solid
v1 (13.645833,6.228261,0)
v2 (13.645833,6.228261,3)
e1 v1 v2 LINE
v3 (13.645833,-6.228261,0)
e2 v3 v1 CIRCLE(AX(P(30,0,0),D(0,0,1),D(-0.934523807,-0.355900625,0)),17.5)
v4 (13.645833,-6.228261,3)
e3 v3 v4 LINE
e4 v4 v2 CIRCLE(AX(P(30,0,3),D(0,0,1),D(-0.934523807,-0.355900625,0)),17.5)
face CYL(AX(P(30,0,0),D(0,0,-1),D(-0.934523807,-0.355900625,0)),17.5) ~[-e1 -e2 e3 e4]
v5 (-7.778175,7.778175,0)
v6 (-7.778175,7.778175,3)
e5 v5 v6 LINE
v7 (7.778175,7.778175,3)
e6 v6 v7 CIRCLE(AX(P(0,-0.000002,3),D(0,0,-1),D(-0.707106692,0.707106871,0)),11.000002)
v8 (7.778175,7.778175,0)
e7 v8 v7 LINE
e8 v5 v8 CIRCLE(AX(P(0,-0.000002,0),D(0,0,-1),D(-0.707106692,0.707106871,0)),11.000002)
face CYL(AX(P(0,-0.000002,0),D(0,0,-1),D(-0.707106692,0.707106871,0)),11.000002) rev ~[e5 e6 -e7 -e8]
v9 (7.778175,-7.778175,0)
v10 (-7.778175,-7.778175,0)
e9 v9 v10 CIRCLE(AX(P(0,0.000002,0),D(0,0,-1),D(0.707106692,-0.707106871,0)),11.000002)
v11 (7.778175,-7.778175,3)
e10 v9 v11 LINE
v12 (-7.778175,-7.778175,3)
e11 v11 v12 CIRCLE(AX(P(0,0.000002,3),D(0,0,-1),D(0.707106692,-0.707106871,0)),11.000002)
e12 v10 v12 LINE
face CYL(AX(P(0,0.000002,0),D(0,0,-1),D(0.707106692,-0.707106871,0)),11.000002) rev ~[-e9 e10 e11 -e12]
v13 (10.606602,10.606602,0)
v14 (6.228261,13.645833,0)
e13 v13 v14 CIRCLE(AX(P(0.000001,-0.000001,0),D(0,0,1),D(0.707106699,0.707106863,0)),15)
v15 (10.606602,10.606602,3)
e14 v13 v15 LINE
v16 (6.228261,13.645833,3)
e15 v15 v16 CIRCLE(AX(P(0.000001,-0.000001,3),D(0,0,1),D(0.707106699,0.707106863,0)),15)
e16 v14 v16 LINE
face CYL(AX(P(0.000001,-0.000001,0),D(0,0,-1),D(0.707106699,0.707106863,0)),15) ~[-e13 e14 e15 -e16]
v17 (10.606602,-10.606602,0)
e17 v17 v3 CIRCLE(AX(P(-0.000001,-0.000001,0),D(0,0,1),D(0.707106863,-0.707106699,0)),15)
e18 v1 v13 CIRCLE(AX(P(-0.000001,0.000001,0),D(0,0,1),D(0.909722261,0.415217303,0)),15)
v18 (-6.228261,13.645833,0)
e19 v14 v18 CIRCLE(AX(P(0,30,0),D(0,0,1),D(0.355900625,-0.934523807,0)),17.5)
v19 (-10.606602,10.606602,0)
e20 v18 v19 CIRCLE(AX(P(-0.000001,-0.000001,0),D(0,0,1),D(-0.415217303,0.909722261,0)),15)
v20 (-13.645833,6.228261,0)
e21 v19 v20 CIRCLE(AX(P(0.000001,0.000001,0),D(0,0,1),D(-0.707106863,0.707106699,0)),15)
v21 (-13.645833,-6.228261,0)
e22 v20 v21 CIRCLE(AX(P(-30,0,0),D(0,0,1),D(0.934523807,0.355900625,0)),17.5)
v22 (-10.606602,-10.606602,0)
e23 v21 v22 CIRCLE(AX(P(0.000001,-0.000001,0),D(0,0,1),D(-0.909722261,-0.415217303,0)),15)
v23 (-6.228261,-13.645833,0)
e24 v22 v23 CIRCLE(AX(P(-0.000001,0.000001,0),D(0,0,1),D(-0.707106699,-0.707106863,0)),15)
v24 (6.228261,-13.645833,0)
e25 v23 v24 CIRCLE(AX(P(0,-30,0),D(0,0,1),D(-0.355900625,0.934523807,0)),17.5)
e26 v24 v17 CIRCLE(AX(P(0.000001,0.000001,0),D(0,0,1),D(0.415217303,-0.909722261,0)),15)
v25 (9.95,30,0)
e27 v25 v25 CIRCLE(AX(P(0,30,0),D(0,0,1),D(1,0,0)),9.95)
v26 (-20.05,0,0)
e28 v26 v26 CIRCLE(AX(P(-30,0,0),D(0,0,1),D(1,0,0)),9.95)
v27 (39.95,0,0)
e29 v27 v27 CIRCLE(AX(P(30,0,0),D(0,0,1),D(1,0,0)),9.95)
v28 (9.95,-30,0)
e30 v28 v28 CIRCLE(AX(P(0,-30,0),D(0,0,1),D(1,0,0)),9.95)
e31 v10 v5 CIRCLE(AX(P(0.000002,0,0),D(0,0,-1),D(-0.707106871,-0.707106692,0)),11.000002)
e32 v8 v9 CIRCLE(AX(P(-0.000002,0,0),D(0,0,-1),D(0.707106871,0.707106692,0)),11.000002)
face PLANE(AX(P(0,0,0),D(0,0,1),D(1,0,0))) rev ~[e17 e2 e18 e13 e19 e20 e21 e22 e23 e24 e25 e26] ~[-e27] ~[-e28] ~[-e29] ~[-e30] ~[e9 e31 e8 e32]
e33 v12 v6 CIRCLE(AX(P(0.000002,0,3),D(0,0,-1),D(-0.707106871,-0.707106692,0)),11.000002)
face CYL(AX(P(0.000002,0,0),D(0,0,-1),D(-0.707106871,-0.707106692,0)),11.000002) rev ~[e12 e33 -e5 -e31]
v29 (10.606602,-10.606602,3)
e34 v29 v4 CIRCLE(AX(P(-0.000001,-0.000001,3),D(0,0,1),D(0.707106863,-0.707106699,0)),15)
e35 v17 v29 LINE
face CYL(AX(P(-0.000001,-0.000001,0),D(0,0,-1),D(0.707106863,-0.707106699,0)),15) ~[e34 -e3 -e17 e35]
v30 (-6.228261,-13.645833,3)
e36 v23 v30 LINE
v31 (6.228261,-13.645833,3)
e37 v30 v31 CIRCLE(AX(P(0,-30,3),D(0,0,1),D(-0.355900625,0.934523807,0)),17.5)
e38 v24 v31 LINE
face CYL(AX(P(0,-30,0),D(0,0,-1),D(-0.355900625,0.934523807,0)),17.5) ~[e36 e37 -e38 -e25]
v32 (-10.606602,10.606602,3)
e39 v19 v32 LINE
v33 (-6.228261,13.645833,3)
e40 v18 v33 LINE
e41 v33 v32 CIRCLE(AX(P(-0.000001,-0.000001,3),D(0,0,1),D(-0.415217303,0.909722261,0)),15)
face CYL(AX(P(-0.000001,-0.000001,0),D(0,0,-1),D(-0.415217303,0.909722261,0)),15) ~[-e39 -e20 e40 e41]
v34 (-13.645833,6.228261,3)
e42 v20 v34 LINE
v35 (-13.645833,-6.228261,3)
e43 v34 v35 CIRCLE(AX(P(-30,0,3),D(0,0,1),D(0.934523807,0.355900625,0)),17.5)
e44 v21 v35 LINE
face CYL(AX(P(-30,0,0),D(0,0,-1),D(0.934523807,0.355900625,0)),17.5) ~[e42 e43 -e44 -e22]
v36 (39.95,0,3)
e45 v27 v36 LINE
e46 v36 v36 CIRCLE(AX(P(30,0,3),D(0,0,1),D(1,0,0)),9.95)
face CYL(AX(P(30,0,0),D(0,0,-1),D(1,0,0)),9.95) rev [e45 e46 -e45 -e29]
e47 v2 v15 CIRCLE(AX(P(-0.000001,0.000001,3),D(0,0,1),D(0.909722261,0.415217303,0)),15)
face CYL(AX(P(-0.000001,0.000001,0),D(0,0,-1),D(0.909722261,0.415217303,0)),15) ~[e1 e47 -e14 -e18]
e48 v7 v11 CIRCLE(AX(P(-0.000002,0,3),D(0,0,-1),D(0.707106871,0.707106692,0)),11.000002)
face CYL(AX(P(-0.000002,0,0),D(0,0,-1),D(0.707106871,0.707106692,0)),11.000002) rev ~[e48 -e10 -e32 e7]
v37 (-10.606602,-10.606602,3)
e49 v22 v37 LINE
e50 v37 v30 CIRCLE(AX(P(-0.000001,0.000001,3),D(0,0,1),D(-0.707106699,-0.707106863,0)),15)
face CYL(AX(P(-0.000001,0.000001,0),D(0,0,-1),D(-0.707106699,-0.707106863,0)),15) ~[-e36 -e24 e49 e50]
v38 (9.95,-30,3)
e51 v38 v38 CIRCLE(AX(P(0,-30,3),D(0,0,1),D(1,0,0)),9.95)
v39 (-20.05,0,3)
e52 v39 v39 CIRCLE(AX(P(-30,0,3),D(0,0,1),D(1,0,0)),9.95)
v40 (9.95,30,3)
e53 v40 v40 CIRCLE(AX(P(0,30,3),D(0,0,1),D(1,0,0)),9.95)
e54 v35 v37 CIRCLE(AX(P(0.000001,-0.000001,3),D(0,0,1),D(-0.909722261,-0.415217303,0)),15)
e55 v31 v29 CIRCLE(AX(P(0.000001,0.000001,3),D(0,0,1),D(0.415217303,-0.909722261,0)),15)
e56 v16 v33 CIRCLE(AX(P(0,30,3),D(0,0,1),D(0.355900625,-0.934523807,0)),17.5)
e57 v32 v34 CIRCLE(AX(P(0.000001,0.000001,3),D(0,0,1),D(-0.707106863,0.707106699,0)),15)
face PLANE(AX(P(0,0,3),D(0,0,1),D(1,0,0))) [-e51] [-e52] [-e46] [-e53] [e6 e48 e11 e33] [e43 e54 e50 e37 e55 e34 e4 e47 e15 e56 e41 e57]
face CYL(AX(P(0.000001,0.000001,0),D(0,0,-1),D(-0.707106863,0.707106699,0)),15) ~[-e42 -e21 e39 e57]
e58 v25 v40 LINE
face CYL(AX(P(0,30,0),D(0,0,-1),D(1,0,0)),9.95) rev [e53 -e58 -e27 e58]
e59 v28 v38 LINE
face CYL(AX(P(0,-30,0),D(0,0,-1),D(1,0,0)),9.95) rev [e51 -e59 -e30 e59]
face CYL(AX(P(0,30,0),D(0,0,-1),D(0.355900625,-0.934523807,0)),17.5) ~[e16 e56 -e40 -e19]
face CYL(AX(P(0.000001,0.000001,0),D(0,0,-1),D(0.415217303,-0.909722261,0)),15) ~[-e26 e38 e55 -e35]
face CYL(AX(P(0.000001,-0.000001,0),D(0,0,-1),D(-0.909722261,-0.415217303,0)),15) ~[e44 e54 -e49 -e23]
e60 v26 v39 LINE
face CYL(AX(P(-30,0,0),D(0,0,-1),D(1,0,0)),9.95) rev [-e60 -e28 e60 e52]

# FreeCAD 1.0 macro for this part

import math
import FreeCAD as App
import Part
import Sketcher

V = App.Vector

doc = App.newDocument("Part")
params = doc.addObject("Spreadsheet::Sheet", "Params")
for row, (alias, value) in enumerate([
    ("sketch1_radius", "15 mm"),
    ("sketch1_radius2", "11.000002 mm"),
    ("sketch1_diameter", "19.9 mm"),
    ("sketch1_radius3", "17.5 mm"),
    ("pad1_length", "3 mm"),
], start=1):
    params.set(f"A{row}", alias)
    params.set(f"B{row}", "=" + value)
    params.setAlias(f"B{row}", alias)

body = doc.addObject("PartDesign::Body", "Body")

sketch1 = body.newObject("Sketcher::SketchObject", "Sketch")
sketch1.AttachmentSupport = (doc.getObject("XY_Plane"), [""])
sketch1.MapMode = "FlatFace"
sketch1.addGeometry([
    Part.ArcOfCircle(Part.Circle(V(0, 30, 0), V(0, 0, 1), 18), math.radians(-69), math.radians(249)),
    Part.ArcOfCircle(Part.Circle(V(0, 0, 0), V(0, 0, 1), 15), math.radians(115), math.radians(135)),
    Part.ArcOfCircle(Part.Circle(V(0, 0, 0), V(0, 0, 1), 15), math.radians(135), math.radians(155)),
    Part.ArcOfCircle(Part.Circle(V(-30, 0, 0), V(0, 0, 1), 18), math.radians(21), math.radians(339)),
    Part.ArcOfCircle(Part.Circle(V(0, 0, 0), V(0, 0, 1), 15), math.radians(-155), math.radians(-135)),
    Part.ArcOfCircle(Part.Circle(V(0, 0, 0), V(0, 0, 1), 15), math.radians(-135), math.radians(-115)),
    Part.ArcOfCircle(Part.Circle(V(0, -30, 0), V(0, 0, 1), 18), math.radians(111), math.radians(429)),
    Part.ArcOfCircle(Part.Circle(V(0, 0, 0), V(0, 0, 1), 15), math.radians(-65), math.radians(-45)),
    Part.ArcOfCircle(Part.Circle(V(0, 0, 0), V(0, 0, 1), 15), math.radians(-45), math.radians(-25)),
    Part.ArcOfCircle(Part.Circle(V(30, 0, 0), V(0, 0, 1), 18), math.radians(-159), math.radians(159)),
    Part.ArcOfCircle(Part.Circle(V(0, 0, 0), V(0, 0, 1), 15), math.radians(25), math.radians(45)),
    Part.ArcOfCircle(Part.Circle(V(0, 0, 0), V(0, 0, 1), 15), math.radians(45), math.radians(65)),
    Part.Circle(V(0, -30, 0), V(0, 0, 1), 10),
    Part.Circle(V(-30, 0, 0), V(0, 0, 1), 10),
    Part.ArcOfCircle(Part.Circle(V(0, 0, 0), V(0, 0, 1), 11), math.radians(135), math.radians(225)),
    Part.ArcOfCircle(Part.Circle(V(0, 0, 0), V(0, 0, 1), 11), math.radians(45), math.radians(135)),
    Part.ArcOfCircle(Part.Circle(V(0, 0, 0), V(0, 0, 1), 11), math.radians(-45), math.radians(45)),
    Part.ArcOfCircle(Part.Circle(V(0, 0, 0), V(0, 0, 1), 11), math.radians(-135), math.radians(-45)),
    Part.Circle(V(30, 0, 0), V(0, 0, 1), 10),
    Part.Circle(V(0, 30, 0), V(0, 0, 1), 10),
], False)
sketch1.addConstraint([
    Sketcher.Constraint("Coincident", 0, 2, 1, 1),
    Sketcher.Constraint("Tangent", 1, 2, 2, 1),
    Sketcher.Constraint("Coincident", 2, 2, 3, 1),
    Sketcher.Constraint("Coincident", 3, 2, 4, 1),
    Sketcher.Constraint("Tangent", 4, 2, 5, 1),
    Sketcher.Constraint("Coincident", 5, 2, 6, 1),
    Sketcher.Constraint("Coincident", 6, 2, 7, 1),
    Sketcher.Constraint("Tangent", 7, 2, 8, 1),
    Sketcher.Constraint("Coincident", 8, 2, 9, 1),
    Sketcher.Constraint("Coincident", 9, 2, 10, 1),
    Sketcher.Constraint("Tangent", 10, 2, 11, 1),
    Sketcher.Constraint("Coincident", 11, 2, 0, 1),
    Sketcher.Constraint("Tangent", 14, 1, 15, 2),
    Sketcher.Constraint("Tangent", 15, 1, 16, 2),
    Sketcher.Constraint("Tangent", 16, 1, 17, 2),
    Sketcher.Constraint("Tangent", 17, 1, 14, 2),
    Sketcher.Constraint("Coincident", 1, 3, -1, 1),
    Sketcher.Constraint("Coincident", 4, 3, -1, 1),
    Sketcher.Constraint("Coincident", 7, 3, -1, 1),
    Sketcher.Constraint("Coincident", 10, 3, -1, 1),
    Sketcher.Constraint("Coincident", 14, 3, -1, 1),
    Sketcher.Constraint("Coincident", 12, 3, 6, 3),
    Sketcher.Constraint("Coincident", 13, 3, 3, 3),
    Sketcher.Constraint("Coincident", 18, 3, 9, 3),
    Sketcher.Constraint("Coincident", 19, 3, 0, 3),
    Sketcher.Constraint("Equal", 1, 2),
    Sketcher.Constraint("Equal", 0, 3),
    Sketcher.Constraint("Equal", 2, 4),
    Sketcher.Constraint("Equal", 4, 5),
    Sketcher.Constraint("Equal", 3, 6),
    Sketcher.Constraint("Equal", 5, 7),
    Sketcher.Constraint("Equal", 7, 8),
    Sketcher.Constraint("Equal", 6, 9),
    Sketcher.Constraint("Equal", 8, 10),
    Sketcher.Constraint("Equal", 10, 11),
    Sketcher.Constraint("Equal", 12, 13),
    Sketcher.Constraint("Equal", 14, 15),
    Sketcher.Constraint("Equal", 13, 18),
    Sketcher.Constraint("Equal", 18, 19),
    Sketcher.Constraint("Symmetric", 0, 3, 6, 3, -1, 1),
    Sketcher.Constraint("Symmetric", 3, 3, 9, 3, -1, 1),
    Sketcher.Constraint("PointOnObject", 0, 3, -2),
    Sketcher.Constraint("PointOnObject", 3, 3, -1),
    Sketcher.Constraint("Horizontal", 4, 2, 7, 2),
    Sketcher.Constraint("Horizontal", 1, 2, 10, 2),
    Sketcher.Constraint("Horizontal", 14, 1, 15, 1),
    Sketcher.Constraint("Horizontal", 16, 1, 17, 1),
    Sketcher.Constraint("Vertical", 1, 2, 4, 2),
    Sketcher.Constraint("Vertical", 15, 1, 16, 1),
    Sketcher.Constraint("Radius", 1, 15.0),
    Sketcher.Constraint("Radius", 14, 11.000002),
    Sketcher.Constraint("Diameter", 12, 19.9),
    Sketcher.Constraint("Radius", 0, 17.5),
    Sketcher.Constraint("DistanceY", -1, 1, 0, 3, 30.0),
    Sketcher.Constraint("DistanceX", 3, 3, -1, 1, 30.0),
    Sketcher.Constraint("DistanceX", 1, 2, 5, 3, 10.606601),
    Sketcher.Constraint("DistanceY", 14, 1, 0, 2, 5.867658),
])
sketch1.setExpression("Constraints[49]", "Params.sketch1_radius")
sketch1.setExpression("Constraints[50]", "Params.sketch1_radius2")
sketch1.setExpression("Constraints[51]", "Params.sketch1_diameter")
sketch1.setExpression("Constraints[52]", "Params.sketch1_radius3")
pad1 = body.newObject("PartDesign::Pad", "Pad")
pad1.Profile = sketch1
pad1.setExpression("Length", "Params.pad1_length")

doc.recompute()
